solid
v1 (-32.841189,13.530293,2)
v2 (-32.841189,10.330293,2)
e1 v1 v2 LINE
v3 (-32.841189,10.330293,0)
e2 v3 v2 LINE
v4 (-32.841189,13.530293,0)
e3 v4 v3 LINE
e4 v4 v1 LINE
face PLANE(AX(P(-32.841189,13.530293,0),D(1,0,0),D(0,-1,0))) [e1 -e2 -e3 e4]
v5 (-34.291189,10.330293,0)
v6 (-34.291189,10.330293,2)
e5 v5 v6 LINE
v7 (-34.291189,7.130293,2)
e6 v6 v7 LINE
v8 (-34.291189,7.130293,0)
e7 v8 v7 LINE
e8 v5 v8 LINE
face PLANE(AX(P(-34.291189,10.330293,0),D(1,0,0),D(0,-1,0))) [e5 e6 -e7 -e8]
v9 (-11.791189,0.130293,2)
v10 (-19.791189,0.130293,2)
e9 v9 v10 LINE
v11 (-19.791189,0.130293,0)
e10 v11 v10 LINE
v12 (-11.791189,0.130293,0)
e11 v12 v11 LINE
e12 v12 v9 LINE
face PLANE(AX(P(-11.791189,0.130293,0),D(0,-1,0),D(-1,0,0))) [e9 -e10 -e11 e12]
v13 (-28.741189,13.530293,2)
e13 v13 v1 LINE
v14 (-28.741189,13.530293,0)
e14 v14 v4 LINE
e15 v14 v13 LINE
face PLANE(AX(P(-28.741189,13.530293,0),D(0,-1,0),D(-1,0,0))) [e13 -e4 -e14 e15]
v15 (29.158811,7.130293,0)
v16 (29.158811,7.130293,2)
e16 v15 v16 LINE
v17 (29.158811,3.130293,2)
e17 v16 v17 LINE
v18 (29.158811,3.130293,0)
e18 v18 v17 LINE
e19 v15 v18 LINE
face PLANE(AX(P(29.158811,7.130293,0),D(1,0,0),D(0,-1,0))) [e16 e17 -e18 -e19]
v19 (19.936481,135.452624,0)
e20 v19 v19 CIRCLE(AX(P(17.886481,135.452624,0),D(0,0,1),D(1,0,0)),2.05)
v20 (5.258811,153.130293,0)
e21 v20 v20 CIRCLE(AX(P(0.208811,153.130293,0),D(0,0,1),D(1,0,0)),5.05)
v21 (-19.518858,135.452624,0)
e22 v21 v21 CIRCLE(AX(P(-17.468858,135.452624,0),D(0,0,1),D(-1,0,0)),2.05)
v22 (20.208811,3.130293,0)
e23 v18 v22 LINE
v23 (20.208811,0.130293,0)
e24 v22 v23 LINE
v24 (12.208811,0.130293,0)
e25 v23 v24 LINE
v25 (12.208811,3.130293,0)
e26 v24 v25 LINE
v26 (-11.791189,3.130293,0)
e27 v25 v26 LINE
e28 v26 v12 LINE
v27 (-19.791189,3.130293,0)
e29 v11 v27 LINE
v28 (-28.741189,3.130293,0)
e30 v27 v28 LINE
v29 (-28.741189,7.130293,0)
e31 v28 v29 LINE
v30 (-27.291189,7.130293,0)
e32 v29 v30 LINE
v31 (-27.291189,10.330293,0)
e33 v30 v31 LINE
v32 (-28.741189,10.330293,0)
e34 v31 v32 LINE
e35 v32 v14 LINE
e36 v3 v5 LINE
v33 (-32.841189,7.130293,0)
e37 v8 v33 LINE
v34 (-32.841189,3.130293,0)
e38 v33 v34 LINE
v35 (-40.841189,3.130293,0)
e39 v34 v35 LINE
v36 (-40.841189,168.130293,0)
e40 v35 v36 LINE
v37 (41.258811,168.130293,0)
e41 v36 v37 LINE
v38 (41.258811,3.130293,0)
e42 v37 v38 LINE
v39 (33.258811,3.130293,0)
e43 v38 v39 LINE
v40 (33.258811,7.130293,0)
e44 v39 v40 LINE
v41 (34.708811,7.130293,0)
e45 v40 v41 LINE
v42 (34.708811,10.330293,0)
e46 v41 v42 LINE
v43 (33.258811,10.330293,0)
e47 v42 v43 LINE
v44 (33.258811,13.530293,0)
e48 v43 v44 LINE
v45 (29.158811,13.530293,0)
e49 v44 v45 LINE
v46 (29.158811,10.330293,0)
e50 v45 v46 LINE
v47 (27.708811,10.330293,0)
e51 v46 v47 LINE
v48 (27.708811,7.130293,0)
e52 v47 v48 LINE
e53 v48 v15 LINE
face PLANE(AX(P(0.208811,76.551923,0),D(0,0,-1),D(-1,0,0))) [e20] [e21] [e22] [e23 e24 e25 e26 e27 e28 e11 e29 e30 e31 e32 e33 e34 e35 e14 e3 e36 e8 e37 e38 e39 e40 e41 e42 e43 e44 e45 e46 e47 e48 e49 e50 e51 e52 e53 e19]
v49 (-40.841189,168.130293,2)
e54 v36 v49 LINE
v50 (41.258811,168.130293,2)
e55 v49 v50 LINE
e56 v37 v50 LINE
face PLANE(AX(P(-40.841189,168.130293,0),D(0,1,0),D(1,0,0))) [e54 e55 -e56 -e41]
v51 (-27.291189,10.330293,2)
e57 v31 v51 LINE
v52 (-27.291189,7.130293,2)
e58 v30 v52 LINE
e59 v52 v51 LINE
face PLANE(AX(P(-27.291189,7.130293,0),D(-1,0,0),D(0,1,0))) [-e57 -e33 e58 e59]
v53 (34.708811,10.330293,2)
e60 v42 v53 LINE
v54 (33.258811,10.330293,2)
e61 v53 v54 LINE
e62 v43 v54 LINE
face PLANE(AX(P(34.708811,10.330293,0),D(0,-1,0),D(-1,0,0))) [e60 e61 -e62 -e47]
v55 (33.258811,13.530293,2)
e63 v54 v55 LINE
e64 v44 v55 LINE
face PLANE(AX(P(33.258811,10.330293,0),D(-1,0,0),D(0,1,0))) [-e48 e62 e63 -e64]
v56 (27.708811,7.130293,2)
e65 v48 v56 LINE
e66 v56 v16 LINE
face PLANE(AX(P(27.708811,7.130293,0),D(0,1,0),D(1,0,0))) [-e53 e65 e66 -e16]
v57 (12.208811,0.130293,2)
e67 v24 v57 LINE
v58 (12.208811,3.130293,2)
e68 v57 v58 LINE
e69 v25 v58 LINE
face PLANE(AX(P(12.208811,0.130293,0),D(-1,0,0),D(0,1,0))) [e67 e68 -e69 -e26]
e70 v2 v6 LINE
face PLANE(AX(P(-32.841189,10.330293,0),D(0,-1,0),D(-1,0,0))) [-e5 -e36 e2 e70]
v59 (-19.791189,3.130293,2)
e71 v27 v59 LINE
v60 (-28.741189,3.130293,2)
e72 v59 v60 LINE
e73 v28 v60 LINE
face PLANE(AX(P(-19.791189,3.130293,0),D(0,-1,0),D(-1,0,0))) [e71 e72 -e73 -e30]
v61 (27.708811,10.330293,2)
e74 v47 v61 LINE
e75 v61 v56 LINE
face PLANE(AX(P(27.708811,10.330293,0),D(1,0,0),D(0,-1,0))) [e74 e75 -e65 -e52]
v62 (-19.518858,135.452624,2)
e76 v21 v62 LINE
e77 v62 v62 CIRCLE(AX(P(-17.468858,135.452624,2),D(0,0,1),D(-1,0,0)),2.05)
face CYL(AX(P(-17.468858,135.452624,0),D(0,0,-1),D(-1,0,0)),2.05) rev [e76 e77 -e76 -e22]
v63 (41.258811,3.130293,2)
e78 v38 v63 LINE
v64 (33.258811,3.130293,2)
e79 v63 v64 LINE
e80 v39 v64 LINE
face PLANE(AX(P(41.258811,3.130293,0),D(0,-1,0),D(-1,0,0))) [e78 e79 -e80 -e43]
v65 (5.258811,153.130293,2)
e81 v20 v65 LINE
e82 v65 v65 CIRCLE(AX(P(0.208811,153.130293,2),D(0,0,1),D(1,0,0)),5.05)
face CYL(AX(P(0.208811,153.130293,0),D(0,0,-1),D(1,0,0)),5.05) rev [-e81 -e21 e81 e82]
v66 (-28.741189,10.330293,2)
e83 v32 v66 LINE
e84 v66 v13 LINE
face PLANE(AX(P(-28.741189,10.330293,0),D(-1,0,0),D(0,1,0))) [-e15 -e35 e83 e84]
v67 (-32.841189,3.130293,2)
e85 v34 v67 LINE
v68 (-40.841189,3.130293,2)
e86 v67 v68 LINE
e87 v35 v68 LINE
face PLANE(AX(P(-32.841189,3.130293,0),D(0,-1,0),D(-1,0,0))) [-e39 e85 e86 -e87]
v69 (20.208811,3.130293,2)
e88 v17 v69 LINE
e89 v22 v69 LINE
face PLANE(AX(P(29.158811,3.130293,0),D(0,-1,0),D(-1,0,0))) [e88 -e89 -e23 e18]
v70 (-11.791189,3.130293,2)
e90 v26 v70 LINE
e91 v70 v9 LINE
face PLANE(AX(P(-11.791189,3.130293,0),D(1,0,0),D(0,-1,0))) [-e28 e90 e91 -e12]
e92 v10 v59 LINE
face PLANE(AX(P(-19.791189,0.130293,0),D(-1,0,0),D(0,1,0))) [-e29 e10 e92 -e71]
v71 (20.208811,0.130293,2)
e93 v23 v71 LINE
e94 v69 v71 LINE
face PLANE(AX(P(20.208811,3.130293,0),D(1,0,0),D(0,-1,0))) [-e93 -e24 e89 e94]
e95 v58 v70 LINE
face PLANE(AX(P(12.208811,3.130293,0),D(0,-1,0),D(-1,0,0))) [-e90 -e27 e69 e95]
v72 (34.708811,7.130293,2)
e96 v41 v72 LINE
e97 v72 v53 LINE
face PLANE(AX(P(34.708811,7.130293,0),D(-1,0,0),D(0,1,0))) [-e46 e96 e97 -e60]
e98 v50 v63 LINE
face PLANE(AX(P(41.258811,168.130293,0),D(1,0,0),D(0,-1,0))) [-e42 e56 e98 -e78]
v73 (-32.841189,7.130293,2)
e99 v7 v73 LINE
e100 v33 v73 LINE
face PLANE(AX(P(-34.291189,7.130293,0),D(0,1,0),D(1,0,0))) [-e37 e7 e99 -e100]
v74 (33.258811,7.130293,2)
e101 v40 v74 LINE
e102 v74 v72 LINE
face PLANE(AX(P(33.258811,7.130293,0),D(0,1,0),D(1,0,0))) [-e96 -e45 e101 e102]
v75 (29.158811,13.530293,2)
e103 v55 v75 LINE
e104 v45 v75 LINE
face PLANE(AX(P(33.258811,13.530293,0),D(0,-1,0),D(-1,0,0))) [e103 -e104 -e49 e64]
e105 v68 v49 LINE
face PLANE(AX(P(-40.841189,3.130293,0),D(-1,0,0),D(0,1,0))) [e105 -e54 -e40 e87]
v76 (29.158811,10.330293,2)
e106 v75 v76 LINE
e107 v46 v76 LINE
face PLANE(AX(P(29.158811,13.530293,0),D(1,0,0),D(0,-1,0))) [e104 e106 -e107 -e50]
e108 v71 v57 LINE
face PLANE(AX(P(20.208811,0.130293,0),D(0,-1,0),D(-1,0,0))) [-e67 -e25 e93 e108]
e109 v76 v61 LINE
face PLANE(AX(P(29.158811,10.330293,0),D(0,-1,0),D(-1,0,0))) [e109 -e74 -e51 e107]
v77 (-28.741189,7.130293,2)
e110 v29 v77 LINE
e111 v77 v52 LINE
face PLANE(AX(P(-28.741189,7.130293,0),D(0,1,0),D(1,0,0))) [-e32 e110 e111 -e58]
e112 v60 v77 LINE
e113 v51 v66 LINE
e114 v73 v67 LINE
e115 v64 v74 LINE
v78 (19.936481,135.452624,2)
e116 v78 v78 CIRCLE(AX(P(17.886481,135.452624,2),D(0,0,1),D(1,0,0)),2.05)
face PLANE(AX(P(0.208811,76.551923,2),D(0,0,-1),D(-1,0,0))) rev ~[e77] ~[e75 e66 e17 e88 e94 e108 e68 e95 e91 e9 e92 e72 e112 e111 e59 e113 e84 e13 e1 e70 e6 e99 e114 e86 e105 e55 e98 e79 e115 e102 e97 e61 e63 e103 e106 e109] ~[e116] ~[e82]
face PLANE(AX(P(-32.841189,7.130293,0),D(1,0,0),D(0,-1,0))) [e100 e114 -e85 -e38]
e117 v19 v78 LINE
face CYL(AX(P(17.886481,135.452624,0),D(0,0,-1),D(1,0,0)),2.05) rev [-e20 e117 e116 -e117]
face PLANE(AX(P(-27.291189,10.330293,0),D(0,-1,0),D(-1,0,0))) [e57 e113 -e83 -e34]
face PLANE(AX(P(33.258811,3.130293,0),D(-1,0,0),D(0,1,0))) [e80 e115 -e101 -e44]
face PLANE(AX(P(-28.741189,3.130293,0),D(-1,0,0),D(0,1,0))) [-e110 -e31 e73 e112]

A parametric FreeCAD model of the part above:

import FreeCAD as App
import Part
import Sketcher

V = App.Vector
Q = App.Units.Quantity


def add_polygon(sketch, points):
    """Adds a closed chain of lines whose ends are joined by coincident constraints."""
    first, n = sketch.GeometryCount, len(points)
    for a, b in zip(points, points[1:] + points[:1]):
        sketch.addGeometry(Part.LineSegment(App.Vector(*a, 0), App.Vector(*b, 0)), False)
    for i in range(n):
        sketch.addConstraint(Sketcher.Constraint("Coincident", first + i, 2, first + (i + 1) % n, 1))

doc = App.newDocument("Part")
body = doc.addObject("PartDesign::Body", "Body")

# Sketch on XY plane
sketch1 = body.newObject("Sketcher::SketchObject", "Sketch")
sketch1.AttachmentSupport = (doc.getObject("XY_Plane"), [""])
sketch1.MapMode = "FlatFace"
add_polygon(sketch1, [(-28.741189, 7.130293), (-28.741189, 3.130293), (-19.791189, 3.130293), (-19.791189, 0.130293), (-11.791189, 0.130293), (-11.791189, 3.130293), (12.208811, 3.130293), (12.208811, 0.130293), (20.208811, 0.130293), (20.208811, 3.130293), (29.158811, 3.130293), (29.158811, 7.130293), (27.708811, 7.130293), (27.708811, 10.330293), (29.158811, 10.330293), (29.158811, 13.530293), (33.258811, 13.530293), (33.258811, 10.330293), (34.708811, 10.330293), (34.708811, 7.130293), (33.258811, 7.130293), (33.258811, 3.130293), (41.258811, 3.130293), (41.258811, 168.130293), (-40.841189, 168.130293), (-40.841189, 3.130293), (-32.841189, 3.130293), (-32.841189, 7.130293), (-34.291189, 7.130293), (-34.291189, 10.330293), (-32.841189, 10.330293), (-32.841189, 13.530293), (-28.741189, 13.530293), (-28.741189, 10.330293), (-27.291189, 10.330293), (-27.291189, 7.130293)])  # lines 0-35
sketch1.addGeometry(Part.Circle(V(17.886481, 135.452624, 0), V(0, 0, 1), 2.05), False)  # 36
sketch1.addGeometry(Part.Circle(V(-17.468858, 135.452624, 0), V(0, 0, 1), 2.05), False)  # 37
sketch1.addGeometry(Part.Circle(V(0.208811, 153.130293, 0), V(0, 0, 1), 5.05), False)  # 38
sketch1.addConstraint([
    Sketcher.Constraint("Vertical", 0),
    Sketcher.Constraint("Horizontal", 1),
    Sketcher.Constraint("Vertical", 2),
    Sketcher.Constraint("Horizontal", 3),
    Sketcher.Constraint("Vertical", 4),
    Sketcher.Constraint("Horizontal", 5),
    Sketcher.Constraint("Vertical", 6),
    Sketcher.Constraint("Horizontal", 7),
    Sketcher.Constraint("Vertical", 8),
    Sketcher.Constraint("Horizontal", 9),
    Sketcher.Constraint("Vertical", 10),
    Sketcher.Constraint("Horizontal", 11),
    Sketcher.Constraint("Vertical", 12),
    Sketcher.Constraint("Horizontal", 13),
    Sketcher.Constraint("Vertical", 14),
    Sketcher.Constraint("Horizontal", 15),
    Sketcher.Constraint("Vertical", 16),
    Sketcher.Constraint("Horizontal", 17),
    Sketcher.Constraint("Vertical", 18),
    Sketcher.Constraint("Horizontal", 19),
    Sketcher.Constraint("Vertical", 20),
    Sketcher.Constraint("Horizontal", 21),
    Sketcher.Constraint("Vertical", 22),
    Sketcher.Constraint("Horizontal", 23),
    Sketcher.Constraint("Vertical", 24),
    Sketcher.Constraint("Horizontal", 25),
    Sketcher.Constraint("Vertical", 26),
    Sketcher.Constraint("Horizontal", 27),
    Sketcher.Constraint("Vertical", 28),
    Sketcher.Constraint("Horizontal", 29),
    Sketcher.Constraint("Vertical", 30),
    Sketcher.Constraint("Horizontal", 31),
    Sketcher.Constraint("Vertical", 32),
    Sketcher.Constraint("Horizontal", 33),
    Sketcher.Constraint("Vertical", 34),
    Sketcher.Constraint("Horizontal", 35),
    Sketcher.Constraint("Equal", 36, 37),
    Sketcher.Constraint("Horizontal", 36, 3, 37, 3),
    Sketcher.Constraint("Horizontal", 1, 2, 4, 2),
    Sketcher.Constraint("Horizontal", 3, 2, 6, 2),
    Sketcher.Constraint("Horizontal", 5, 2, 8, 2),
    Sketcher.Constraint("Horizontal", 13, 2, 16, 2),
    Sketcher.Constraint("Horizontal", 11, 2, 18, 2),
    Sketcher.Constraint("Horizontal", 9, 2, 20, 2),
    Sketcher.Constraint("Horizontal", 21, 2, 24, 2),
    Sketcher.Constraint("Horizontal", 19, 2, 26, 2),
    Sketcher.Constraint("Horizontal", 17, 2, 28, 2),
    Sketcher.Constraint("Horizontal", 15, 2, 30, 2),
    Sketcher.Constraint("Horizontal", 29, 2, 32, 2),
    Sketcher.Constraint("Horizontal", 27, 2, 34, 2),
    Sketcher.Constraint("Vertical", 10, 2, 13, 2),
    Sketcher.Constraint("Vertical", 16, 2, 19, 2),
    Sketcher.Constraint("Vertical", 26, 2, 29, 2),
    Sketcher.Constraint("Vertical", 0, 2, 31, 2),
    Sketcher.Constraint("Equal", 3, 7),
    Sketcher.Constraint("Equal", 1, 9),
    Sketcher.Constraint("Equal", 13, 17),
    Sketcher.Constraint("Equal", 7, 21),
    Sketcher.Constraint("Equal", 21, 25),
    Sketcher.Constraint("Equal", 19, 27),
    Sketcher.Constraint("Equal", 15, 31),
    Sketcher.Constraint("Equal", 29, 33),
    Sketcher.Constraint("Equal", 12, 14),
    Sketcher.Constraint("Diameter", 36, Q("4.1 mm")),
    Sketcher.Constraint("Diameter", 38, Q("10.1 mm")),
    Sketcher.Constraint("DistanceX", 3, 1, 3, 2, Q("8 mm")),
    Sketcher.Constraint("DistanceX", 5, 1, 5, 2, Q("24 mm")),
    Sketcher.Constraint("DistanceY", 0, 2, 0, 1, Q("4 mm")),
    Sketcher.Constraint("DistanceY", 2, 2, 2, 1, Q("3 mm")),
    Sketcher.Constraint("DistanceY", 22, 1, 22, 2, Q("165 mm")),
    Sketcher.Constraint("DistanceX", 15, 1, 15, 2, Q("4.1 mm")),
    Sketcher.Constraint("DistanceX", 23, 2, 23, 1, Q("82.1 mm")),
    Sketcher.Constraint("DistanceY", 12, 1, 12, 2, Q("3.2 mm")),
    Sketcher.Constraint("DistanceY", 0, 2, 38, 3, Q("150 mm")),
    Sketcher.Constraint("DistanceX", 1, 2, 38, 3, Q("20 mm")),
    Sketcher.Constraint("DistanceX", 11, 2, 11, 1, Q("1.45 mm")),
    Sketcher.Constraint("DistanceX", -1, 1, 36, 3, Q("17.886481 mm")),
    Sketcher.Constraint("DistanceX", 37, 3, -1, 1, Q("17.468858 mm")),
    Sketcher.Constraint("DistanceX", -1, 1, 38, 3, Q("0.208811 mm")),
    Sketcher.Constraint("DistanceY", 36, 3, 38, 3, Q("17.67767 mm")),
    Sketcher.Constraint("DistanceY", -1, 1, 36, 3, Q("135.452624 mm")),
])
pad1 = body.newObject("PartDesign::Pad", "Pad")
pad1.Profile = sketch1
pad1.Length = 2

doc.recompute()
